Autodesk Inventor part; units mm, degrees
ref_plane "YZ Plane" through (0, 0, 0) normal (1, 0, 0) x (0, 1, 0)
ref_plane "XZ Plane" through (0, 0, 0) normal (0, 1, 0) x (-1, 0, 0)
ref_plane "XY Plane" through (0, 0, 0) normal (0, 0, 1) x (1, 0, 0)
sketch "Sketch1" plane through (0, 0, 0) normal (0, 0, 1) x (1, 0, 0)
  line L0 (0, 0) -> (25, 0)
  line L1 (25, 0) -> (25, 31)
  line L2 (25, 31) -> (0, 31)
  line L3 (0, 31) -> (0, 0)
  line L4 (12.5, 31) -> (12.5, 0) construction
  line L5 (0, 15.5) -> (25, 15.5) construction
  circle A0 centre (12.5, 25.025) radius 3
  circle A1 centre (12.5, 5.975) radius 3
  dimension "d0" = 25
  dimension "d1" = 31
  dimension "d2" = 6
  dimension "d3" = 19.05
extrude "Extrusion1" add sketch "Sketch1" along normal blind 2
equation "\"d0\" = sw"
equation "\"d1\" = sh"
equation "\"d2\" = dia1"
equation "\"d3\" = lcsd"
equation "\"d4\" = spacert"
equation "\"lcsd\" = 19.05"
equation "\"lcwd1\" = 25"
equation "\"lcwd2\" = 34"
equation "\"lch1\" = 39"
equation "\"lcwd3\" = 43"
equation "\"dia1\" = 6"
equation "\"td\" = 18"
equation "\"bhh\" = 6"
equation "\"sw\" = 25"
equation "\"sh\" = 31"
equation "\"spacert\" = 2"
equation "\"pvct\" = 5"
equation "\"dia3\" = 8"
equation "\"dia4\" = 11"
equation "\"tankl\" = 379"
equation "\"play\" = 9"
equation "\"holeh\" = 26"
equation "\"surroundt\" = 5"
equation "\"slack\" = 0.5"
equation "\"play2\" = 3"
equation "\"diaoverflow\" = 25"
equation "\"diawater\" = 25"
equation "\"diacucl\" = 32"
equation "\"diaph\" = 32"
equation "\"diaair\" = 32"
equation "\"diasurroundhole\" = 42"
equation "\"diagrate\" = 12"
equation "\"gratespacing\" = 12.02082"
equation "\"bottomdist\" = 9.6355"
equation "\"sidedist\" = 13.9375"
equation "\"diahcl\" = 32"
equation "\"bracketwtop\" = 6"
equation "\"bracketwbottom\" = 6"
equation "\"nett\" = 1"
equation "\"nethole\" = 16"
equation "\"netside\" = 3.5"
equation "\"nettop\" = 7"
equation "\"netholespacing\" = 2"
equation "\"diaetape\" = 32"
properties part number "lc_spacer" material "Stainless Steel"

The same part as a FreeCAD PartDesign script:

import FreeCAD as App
import Part
import Sketcher
from FreeCAD import Vector


def add_polygon(sketch, points):
    """Adds a closed chain of lines whose ends are joined by coincident constraints."""
    first, n = sketch.GeometryCount, len(points)
    for a, b in zip(points, points[1:] + points[:1]):
        sketch.addGeometry(Part.LineSegment(App.Vector(*a, 0), App.Vector(*b, 0)), False)
    for i in range(n):
        sketch.addConstraint(Sketcher.Constraint("Coincident", first + i, 2, first + (i + 1) % n, 1))

doc = App.newDocument("Part")
body = doc.addObject("PartDesign::Body", "Body")

sketch1 = body.newObject("Sketcher::SketchObject", "Sketch")
sketch1.AttachmentSupport = (doc.getObject("XY_Plane"), [""])
sketch1.MapMode = "FlatFace"
add_polygon(sketch1, [(0, 31), (0, 0), (25, 0), (25, 31)])
sketch1.addGeometry(Part.Circle(Vector(12.5, 5.975, 0), Vector(0, 0, 1), 3), False)
sketch1.addGeometry(Part.Circle(Vector(12.5, 25.025, 0), Vector(0, 0, 1), 3), False)
sketch1.addConstraint([
    Sketcher.Constraint("Vertical", 0),
    Sketcher.Constraint("Horizontal", 1),
    Sketcher.Constraint("Vertical", 2),
    Sketcher.Constraint("Horizontal", 3),
    Sketcher.Constraint("Coincident", 0, 2, -1, 1),
    Sketcher.Constraint("Equal", 4, 5),
    Sketcher.Constraint("Vertical", 4, 3, 5, 3),
    Sketcher.Constraint("Diameter", 4, 6.0),
    Sketcher.Constraint("DistanceX", 1, 1, 1, 2, 25.0),
    Sketcher.Constraint("DistanceY", 0, 2, 0, 1, 31.0),
    Sketcher.Constraint("DistanceY", 4, 3, 5, 3, 19.05),
    Sketcher.Constraint("DistanceX", -1, 1, 4, 3, 12.5),
    Sketcher.Constraint("DistanceY", -1, 1, 4, 3, 5.975),
])
pad1 = body.newObject("PartDesign::Pad", "Pad")
pad1.Profile = sketch1
pad1.Length = 2

doc.recompute()
